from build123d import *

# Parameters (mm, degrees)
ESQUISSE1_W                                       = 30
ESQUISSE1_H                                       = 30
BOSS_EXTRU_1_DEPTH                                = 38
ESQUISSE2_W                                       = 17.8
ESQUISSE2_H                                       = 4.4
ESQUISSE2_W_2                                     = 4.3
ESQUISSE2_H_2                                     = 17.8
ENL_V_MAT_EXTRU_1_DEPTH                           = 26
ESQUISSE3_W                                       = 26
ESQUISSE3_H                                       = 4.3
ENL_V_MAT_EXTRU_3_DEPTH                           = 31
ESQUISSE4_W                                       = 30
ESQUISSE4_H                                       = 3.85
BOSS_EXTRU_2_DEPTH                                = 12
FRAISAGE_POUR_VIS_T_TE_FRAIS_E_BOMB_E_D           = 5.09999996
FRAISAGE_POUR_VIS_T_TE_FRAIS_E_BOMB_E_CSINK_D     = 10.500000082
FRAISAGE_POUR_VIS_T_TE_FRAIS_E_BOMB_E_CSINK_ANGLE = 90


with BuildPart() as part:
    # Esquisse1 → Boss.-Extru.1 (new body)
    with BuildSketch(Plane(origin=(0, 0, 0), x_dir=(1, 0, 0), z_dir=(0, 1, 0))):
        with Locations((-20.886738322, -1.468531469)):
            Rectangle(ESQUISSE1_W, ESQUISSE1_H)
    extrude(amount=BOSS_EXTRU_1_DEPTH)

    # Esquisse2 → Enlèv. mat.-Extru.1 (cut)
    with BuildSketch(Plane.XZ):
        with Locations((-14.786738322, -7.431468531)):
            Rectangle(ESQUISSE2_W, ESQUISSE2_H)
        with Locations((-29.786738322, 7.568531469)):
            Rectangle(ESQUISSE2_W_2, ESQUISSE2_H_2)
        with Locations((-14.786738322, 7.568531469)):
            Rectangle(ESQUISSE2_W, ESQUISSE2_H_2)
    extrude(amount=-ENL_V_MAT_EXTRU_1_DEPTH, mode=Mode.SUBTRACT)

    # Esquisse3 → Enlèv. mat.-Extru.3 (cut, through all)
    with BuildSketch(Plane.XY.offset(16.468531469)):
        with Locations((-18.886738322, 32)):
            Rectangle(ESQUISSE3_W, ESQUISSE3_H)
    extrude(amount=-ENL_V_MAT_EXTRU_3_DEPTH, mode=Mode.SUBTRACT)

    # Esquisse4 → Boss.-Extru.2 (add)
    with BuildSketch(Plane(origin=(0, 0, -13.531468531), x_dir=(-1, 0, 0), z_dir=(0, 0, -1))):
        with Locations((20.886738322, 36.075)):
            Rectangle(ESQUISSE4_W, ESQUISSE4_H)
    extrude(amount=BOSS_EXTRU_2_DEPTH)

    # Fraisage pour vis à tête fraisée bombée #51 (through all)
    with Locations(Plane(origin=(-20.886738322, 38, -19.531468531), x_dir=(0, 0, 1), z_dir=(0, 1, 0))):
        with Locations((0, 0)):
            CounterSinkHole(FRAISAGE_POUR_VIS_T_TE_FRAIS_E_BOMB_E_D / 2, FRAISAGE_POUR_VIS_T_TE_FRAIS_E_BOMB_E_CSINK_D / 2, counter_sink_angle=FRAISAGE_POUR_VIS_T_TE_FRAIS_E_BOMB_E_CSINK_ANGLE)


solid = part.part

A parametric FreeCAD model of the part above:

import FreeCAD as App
import Part
import Sketcher
from FreeCAD import Vector
Q = App.Units.Quantity

doc = App.newDocument("Part")
body = doc.addObject("PartDesign::Body", "Body")

sketch1 = doc.addObject("Sketcher::SketchObject", "Sketch")
body.addObject(sketch1)
sketch1.AttachmentSupport = (doc.XZ_Plane, [""])
sketch1.MapMode = "FlatFace"
sketch1.addGeometry([
    Part.LineSegment(Vector(-36, -14, 0), Vector(-36, 16, 0)),
    Part.LineSegment(Vector(-36, 16, 0), Vector(-6, 16, 0)),
    Part.LineSegment(Vector(-6, 16, 0), Vector(-6, -14, 0)),
    Part.LineSegment(Vector(-6, -14, 0), Vector(-36, -14, 0)),
], False)
sketch1.addConstraint([
    Sketcher.Constraint("Coincident", 0, 2, 1, 1),
    Sketcher.Constraint("Coincident", 1, 2, 2, 1),
    Sketcher.Constraint("Coincident", 2, 2, 3, 1),
    Sketcher.Constraint("Coincident", 3, 2, 0, 1),
    Sketcher.Constraint("Vertical", 0),
    Sketcher.Constraint("Horizontal", 1),
    Sketcher.Constraint("Vertical", 2),
    Sketcher.Constraint("Horizontal", 3),
    Sketcher.Constraint("Equal", 3, 0),
    Sketcher.Constraint("DistanceX", 1, 1, 1, 2, Q("30 mm")),
    Sketcher.Constraint("DistanceX", 0, 2, -1, 1, Q("35.886738 mm")),
    Sketcher.Constraint("DistanceY", -1, 1, 0, 2, Q("16.468531 mm")),
])
pad1 = doc.addObject("PartDesign::Pad", "Pad")
body.addObject(pad1)
pad1.Profile = sketch1
pad1.Length = 38
pad1.Reversed = True

sketch2 = doc.addObject("Sketcher::SketchObject", "Sketch001")
body.addObject(sketch2)
sketch2.AttachmentSupport = (doc.XZ_Plane, [""])
sketch2.MapMode = "FlatFace"
sketch2.addGeometry([
    Part.LineSegment(Vector(-23.7, -5.2, 0), Vector(-23.7, -9.6, 0)),
    Part.LineSegment(Vector(-23.7, -9.6, 0), Vector(-5.9, -9.6, 0)),
    Part.LineSegment(Vector(-5.9, -9.6, 0), Vector(-5.9, -5.2, 0)),
    Part.LineSegment(Vector(-5.9, -5.2, 0), Vector(-23.7, -5.2, 0)),
    Part.LineSegment(Vector(-31.9, 16.5, 0), Vector(-31.9, -1.3, 0)),
    Part.LineSegment(Vector(-31.9, -1.3, 0), Vector(-27.6, -1.3, 0)),
    Part.LineSegment(Vector(-27.6, -1.3, 0), Vector(-27.6, 16.5, 0)),
    Part.LineSegment(Vector(-27.6, 16.5, 0), Vector(-31.9, 16.5, 0)),
    Part.LineSegment(Vector(-23.7, 16.5, 0), Vector(-23.7, -1.3, 0)),
    Part.LineSegment(Vector(-23.7, -1.3, 0), Vector(-5.9, -1.3, 0)),
    Part.LineSegment(Vector(-5.9, -1.3, 0), Vector(-5.9, 16.5, 0)),
    Part.LineSegment(Vector(-5.9, 16.5, 0), Vector(-23.7, 16.5, 0)),
], False)
sketch2.addConstraint([
    Sketcher.Constraint("Coincident", 0, 2, 1, 1),
    Sketcher.Constraint("Coincident", 1, 2, 2, 1),
    Sketcher.Constraint("Coincident", 2, 2, 3, 1),
    Sketcher.Constraint("Coincident", 3, 2, 0, 1),
    Sketcher.Constraint("Coincident", 4, 2, 5, 1),
    Sketcher.Constraint("Coincident", 5, 2, 6, 1),
    Sketcher.Constraint("Coincident", 6, 2, 7, 1),
    Sketcher.Constraint("Coincident", 7, 2, 4, 1),
    Sketcher.Constraint("Coincident", 8, 2, 9, 1),
    Sketcher.Constraint("Coincident", 9, 2, 10, 1),
    Sketcher.Constraint("Coincident", 10, 2, 11, 1),
    Sketcher.Constraint("Coincident", 11, 2, 8, 1),
    Sketcher.Constraint("Vertical", 0),
    Sketcher.Constraint("Horizontal", 1),
    Sketcher.Constraint("Vertical", 2),
    Sketcher.Constraint("Horizontal", 3),
    Sketcher.Constraint("Vertical", 4),
    Sketcher.Constraint("Horizontal", 5),
    Sketcher.Constraint("Vertical", 6),
    Sketcher.Constraint("Horizontal", 7),
    Sketcher.Constraint("Vertical", 8),
    Sketcher.Constraint("Horizontal", 9),
    Sketcher.Constraint("Vertical", 10),
    Sketcher.Constraint("Horizontal", 11),
    Sketcher.Constraint("Horizontal", 5, 2, 8, 2),
    Sketcher.Constraint("Horizontal", 7, 2, 10, 2),
    Sketcher.Constraint("Vertical", 3, 2, 8, 2),
    Sketcher.Constraint("Vertical", 2, 2, 9, 2),
    Sketcher.Constraint("Equal", 11, 4),
    Sketcher.Constraint("DistanceX", 1, 1, 1, 2, Q("17.8 mm")),
    Sketcher.Constraint("DistanceX", 5, 1, 5, 2, Q("4.3 mm")),
    Sketcher.Constraint("DistanceY", 0, 2, 0, 1, Q("4.4 mm")),
    Sketcher.Constraint("DistanceY", 3, 2, 4, 2, Q("3.9 mm")),
    Sketcher.Constraint("DistanceX", 4, 2, 3, 2, Q("8.25 mm")),
    Sketcher.Constraint("DistanceX", 0, 2, -1, 1, Q("23.686738 mm")),
    Sketcher.Constraint("DistanceY", 0, 2, -1, 1, Q("9.631469 mm")),
])
pocket1 = doc.addObject("PartDesign::Pocket", "Pocket")
body.addObject(pocket1)
pocket1.Profile = sketch2
pocket1.Length = 26

sketch3 = doc.addObject("Sketcher::SketchObject", "Sketch002")
body.addObject(sketch3)
sketch3.AttachmentSupport = (doc.XY_Plane, [""])
sketch3.MapMode = "FlatFace"
sketch3.AttachmentOffset = App.Placement(Vector(0, 0, 16.468531), App.Rotation())
sketch3.addGeometry([
    Part.LineSegment(Vector(-31.9, 34.1, 0), Vector(-31.9, 29.9, 0)),
    Part.LineSegment(Vector(-31.9, 29.9, 0), Vector(-5.9, 29.9, 0)),
    Part.LineSegment(Vector(-5.9, 29.9, 0), Vector(-5.9, 34.1, 0)),
    Part.LineSegment(Vector(-5.9, 34.1, 0), Vector(-31.9, 34.1, 0)),
], False)
sketch3.addConstraint([
    Sketcher.Constraint("Coincident", 0, 2, 1, 1),
    Sketcher.Constraint("Coincident", 1, 2, 2, 1),
    Sketcher.Constraint("Coincident", 2, 2, 3, 1),
    Sketcher.Constraint("Coincident", 3, 2, 0, 1),
    Sketcher.Constraint("Vertical", 0),
    Sketcher.Constraint("Horizontal", 1),
    Sketcher.Constraint("Vertical", 2),
    Sketcher.Constraint("Horizontal", 3),
    Sketcher.Constraint("DistanceX", 1, 1, 1, 2, Q("26 mm")),
    Sketcher.Constraint("DistanceY", 0, 2, 0, 1, Q("4.3 mm")),
    Sketcher.Constraint("DistanceY", -1, 1, 0, 2, Q("29.85 mm")),
    Sketcher.Constraint("DistanceX", 0, 2, -1, 1, Q("31.886738 mm")),
])
pocket2 = doc.addObject("PartDesign::Pocket", "Pocket001")
body.addObject(pocket2)
pocket2.Profile = sketch3
pocket2.Type = "ThroughAll"

sketch4 = doc.addObject("Sketcher::SketchObject", "Sketch003")
body.addObject(sketch4)
sketch4.AttachmentSupport = (doc.XY_Plane, [""])
sketch4.MapMode = "FlatFace"
sketch4.AttachmentOffset = App.Placement(Vector(0, 0, -13.531469), App.Rotation())
sketch4.addGeometry([
    Part.LineSegment(Vector(-5.9, 38, 0), Vector(-5.9, 34.1, 0)),
    Part.LineSegment(Vector(-5.9, 34.1, 0), Vector(-35.9, 34.1, 0)),
    Part.LineSegment(Vector(-35.9, 34.1, 0), Vector(-35.9, 38, 0)),
    Part.LineSegment(Vector(-35.9, 38, 0), Vector(-5.9, 38, 0)),
], False)
sketch4.addConstraint([
    Sketcher.Constraint("Coincident", 0, 2, 1, 1),
    Sketcher.Constraint("Coincident", 1, 2, 2, 1),
    Sketcher.Constraint("Coincident", 2, 2, 3, 1),
    Sketcher.Constraint("Coincident", 3, 2, 0, 1),
    Sketcher.Constraint("Vertical", 0),
    Sketcher.Constraint("Horizontal", 1),
    Sketcher.Constraint("Vertical", 2),
    Sketcher.Constraint("Horizontal", 3),
    Sketcher.Constraint("DistanceX", 1, 2, 1, 1, Q("30 mm")),
    Sketcher.Constraint("DistanceY", -1, 1, 2, 2, Q("38 mm")),
    Sketcher.Constraint("DistanceY", 0, 2, 0, 1, Q("3.85 mm")),
    Sketcher.Constraint("DistanceX", 0, 2, -1, 1, Q("5.886738 mm")),
])
pad2 = doc.addObject("PartDesign::Pad", "Pad001")
body.addObject(pad2)
pad2.Profile = sketch4
pad2.Length = 12
pad2.Reversed = True

sketch5 = doc.addObject("Sketcher::SketchObject", "Sketch004")
body.addObject(sketch5)
sketch5.AttachmentSupport = (doc.XZ_Plane, [""])
sketch5.MapMode = "FlatFace"
sketch5.AttachmentOffset = App.Placement(Vector(0, 0, -38), App.Rotation())
sketch5.addGeometry(Part.Circle(Vector(-20.9, -19.5, 0), Vector(0, 0, 1), 2.5), False)
sketch5.addConstraint([
    Sketcher.Constraint("Diameter", 0, Q("5.1 mm")),
    Sketcher.Constraint("DistanceX", 0, 3, -1, 1, Q("20.886738 mm")),
    Sketcher.Constraint("DistanceY", 0, 3, -1, 1, Q("19.531469 mm")),
])
doc.recompute()
hole = doc.addObject("PartDesign::Hole", "Hole")
body.addObject(hole)
hole.Profile = sketch5
hole.ThreadType = "None"
hole.Diameter = 5.1
hole.DepthType = "ThroughAll"
hole.HoleCutType = "Countersink"
hole.HoleCutDiameter = 10.5
hole.HoleCutCountersinkAngle = 90
hole.Reversed = True

doc.recompute()
